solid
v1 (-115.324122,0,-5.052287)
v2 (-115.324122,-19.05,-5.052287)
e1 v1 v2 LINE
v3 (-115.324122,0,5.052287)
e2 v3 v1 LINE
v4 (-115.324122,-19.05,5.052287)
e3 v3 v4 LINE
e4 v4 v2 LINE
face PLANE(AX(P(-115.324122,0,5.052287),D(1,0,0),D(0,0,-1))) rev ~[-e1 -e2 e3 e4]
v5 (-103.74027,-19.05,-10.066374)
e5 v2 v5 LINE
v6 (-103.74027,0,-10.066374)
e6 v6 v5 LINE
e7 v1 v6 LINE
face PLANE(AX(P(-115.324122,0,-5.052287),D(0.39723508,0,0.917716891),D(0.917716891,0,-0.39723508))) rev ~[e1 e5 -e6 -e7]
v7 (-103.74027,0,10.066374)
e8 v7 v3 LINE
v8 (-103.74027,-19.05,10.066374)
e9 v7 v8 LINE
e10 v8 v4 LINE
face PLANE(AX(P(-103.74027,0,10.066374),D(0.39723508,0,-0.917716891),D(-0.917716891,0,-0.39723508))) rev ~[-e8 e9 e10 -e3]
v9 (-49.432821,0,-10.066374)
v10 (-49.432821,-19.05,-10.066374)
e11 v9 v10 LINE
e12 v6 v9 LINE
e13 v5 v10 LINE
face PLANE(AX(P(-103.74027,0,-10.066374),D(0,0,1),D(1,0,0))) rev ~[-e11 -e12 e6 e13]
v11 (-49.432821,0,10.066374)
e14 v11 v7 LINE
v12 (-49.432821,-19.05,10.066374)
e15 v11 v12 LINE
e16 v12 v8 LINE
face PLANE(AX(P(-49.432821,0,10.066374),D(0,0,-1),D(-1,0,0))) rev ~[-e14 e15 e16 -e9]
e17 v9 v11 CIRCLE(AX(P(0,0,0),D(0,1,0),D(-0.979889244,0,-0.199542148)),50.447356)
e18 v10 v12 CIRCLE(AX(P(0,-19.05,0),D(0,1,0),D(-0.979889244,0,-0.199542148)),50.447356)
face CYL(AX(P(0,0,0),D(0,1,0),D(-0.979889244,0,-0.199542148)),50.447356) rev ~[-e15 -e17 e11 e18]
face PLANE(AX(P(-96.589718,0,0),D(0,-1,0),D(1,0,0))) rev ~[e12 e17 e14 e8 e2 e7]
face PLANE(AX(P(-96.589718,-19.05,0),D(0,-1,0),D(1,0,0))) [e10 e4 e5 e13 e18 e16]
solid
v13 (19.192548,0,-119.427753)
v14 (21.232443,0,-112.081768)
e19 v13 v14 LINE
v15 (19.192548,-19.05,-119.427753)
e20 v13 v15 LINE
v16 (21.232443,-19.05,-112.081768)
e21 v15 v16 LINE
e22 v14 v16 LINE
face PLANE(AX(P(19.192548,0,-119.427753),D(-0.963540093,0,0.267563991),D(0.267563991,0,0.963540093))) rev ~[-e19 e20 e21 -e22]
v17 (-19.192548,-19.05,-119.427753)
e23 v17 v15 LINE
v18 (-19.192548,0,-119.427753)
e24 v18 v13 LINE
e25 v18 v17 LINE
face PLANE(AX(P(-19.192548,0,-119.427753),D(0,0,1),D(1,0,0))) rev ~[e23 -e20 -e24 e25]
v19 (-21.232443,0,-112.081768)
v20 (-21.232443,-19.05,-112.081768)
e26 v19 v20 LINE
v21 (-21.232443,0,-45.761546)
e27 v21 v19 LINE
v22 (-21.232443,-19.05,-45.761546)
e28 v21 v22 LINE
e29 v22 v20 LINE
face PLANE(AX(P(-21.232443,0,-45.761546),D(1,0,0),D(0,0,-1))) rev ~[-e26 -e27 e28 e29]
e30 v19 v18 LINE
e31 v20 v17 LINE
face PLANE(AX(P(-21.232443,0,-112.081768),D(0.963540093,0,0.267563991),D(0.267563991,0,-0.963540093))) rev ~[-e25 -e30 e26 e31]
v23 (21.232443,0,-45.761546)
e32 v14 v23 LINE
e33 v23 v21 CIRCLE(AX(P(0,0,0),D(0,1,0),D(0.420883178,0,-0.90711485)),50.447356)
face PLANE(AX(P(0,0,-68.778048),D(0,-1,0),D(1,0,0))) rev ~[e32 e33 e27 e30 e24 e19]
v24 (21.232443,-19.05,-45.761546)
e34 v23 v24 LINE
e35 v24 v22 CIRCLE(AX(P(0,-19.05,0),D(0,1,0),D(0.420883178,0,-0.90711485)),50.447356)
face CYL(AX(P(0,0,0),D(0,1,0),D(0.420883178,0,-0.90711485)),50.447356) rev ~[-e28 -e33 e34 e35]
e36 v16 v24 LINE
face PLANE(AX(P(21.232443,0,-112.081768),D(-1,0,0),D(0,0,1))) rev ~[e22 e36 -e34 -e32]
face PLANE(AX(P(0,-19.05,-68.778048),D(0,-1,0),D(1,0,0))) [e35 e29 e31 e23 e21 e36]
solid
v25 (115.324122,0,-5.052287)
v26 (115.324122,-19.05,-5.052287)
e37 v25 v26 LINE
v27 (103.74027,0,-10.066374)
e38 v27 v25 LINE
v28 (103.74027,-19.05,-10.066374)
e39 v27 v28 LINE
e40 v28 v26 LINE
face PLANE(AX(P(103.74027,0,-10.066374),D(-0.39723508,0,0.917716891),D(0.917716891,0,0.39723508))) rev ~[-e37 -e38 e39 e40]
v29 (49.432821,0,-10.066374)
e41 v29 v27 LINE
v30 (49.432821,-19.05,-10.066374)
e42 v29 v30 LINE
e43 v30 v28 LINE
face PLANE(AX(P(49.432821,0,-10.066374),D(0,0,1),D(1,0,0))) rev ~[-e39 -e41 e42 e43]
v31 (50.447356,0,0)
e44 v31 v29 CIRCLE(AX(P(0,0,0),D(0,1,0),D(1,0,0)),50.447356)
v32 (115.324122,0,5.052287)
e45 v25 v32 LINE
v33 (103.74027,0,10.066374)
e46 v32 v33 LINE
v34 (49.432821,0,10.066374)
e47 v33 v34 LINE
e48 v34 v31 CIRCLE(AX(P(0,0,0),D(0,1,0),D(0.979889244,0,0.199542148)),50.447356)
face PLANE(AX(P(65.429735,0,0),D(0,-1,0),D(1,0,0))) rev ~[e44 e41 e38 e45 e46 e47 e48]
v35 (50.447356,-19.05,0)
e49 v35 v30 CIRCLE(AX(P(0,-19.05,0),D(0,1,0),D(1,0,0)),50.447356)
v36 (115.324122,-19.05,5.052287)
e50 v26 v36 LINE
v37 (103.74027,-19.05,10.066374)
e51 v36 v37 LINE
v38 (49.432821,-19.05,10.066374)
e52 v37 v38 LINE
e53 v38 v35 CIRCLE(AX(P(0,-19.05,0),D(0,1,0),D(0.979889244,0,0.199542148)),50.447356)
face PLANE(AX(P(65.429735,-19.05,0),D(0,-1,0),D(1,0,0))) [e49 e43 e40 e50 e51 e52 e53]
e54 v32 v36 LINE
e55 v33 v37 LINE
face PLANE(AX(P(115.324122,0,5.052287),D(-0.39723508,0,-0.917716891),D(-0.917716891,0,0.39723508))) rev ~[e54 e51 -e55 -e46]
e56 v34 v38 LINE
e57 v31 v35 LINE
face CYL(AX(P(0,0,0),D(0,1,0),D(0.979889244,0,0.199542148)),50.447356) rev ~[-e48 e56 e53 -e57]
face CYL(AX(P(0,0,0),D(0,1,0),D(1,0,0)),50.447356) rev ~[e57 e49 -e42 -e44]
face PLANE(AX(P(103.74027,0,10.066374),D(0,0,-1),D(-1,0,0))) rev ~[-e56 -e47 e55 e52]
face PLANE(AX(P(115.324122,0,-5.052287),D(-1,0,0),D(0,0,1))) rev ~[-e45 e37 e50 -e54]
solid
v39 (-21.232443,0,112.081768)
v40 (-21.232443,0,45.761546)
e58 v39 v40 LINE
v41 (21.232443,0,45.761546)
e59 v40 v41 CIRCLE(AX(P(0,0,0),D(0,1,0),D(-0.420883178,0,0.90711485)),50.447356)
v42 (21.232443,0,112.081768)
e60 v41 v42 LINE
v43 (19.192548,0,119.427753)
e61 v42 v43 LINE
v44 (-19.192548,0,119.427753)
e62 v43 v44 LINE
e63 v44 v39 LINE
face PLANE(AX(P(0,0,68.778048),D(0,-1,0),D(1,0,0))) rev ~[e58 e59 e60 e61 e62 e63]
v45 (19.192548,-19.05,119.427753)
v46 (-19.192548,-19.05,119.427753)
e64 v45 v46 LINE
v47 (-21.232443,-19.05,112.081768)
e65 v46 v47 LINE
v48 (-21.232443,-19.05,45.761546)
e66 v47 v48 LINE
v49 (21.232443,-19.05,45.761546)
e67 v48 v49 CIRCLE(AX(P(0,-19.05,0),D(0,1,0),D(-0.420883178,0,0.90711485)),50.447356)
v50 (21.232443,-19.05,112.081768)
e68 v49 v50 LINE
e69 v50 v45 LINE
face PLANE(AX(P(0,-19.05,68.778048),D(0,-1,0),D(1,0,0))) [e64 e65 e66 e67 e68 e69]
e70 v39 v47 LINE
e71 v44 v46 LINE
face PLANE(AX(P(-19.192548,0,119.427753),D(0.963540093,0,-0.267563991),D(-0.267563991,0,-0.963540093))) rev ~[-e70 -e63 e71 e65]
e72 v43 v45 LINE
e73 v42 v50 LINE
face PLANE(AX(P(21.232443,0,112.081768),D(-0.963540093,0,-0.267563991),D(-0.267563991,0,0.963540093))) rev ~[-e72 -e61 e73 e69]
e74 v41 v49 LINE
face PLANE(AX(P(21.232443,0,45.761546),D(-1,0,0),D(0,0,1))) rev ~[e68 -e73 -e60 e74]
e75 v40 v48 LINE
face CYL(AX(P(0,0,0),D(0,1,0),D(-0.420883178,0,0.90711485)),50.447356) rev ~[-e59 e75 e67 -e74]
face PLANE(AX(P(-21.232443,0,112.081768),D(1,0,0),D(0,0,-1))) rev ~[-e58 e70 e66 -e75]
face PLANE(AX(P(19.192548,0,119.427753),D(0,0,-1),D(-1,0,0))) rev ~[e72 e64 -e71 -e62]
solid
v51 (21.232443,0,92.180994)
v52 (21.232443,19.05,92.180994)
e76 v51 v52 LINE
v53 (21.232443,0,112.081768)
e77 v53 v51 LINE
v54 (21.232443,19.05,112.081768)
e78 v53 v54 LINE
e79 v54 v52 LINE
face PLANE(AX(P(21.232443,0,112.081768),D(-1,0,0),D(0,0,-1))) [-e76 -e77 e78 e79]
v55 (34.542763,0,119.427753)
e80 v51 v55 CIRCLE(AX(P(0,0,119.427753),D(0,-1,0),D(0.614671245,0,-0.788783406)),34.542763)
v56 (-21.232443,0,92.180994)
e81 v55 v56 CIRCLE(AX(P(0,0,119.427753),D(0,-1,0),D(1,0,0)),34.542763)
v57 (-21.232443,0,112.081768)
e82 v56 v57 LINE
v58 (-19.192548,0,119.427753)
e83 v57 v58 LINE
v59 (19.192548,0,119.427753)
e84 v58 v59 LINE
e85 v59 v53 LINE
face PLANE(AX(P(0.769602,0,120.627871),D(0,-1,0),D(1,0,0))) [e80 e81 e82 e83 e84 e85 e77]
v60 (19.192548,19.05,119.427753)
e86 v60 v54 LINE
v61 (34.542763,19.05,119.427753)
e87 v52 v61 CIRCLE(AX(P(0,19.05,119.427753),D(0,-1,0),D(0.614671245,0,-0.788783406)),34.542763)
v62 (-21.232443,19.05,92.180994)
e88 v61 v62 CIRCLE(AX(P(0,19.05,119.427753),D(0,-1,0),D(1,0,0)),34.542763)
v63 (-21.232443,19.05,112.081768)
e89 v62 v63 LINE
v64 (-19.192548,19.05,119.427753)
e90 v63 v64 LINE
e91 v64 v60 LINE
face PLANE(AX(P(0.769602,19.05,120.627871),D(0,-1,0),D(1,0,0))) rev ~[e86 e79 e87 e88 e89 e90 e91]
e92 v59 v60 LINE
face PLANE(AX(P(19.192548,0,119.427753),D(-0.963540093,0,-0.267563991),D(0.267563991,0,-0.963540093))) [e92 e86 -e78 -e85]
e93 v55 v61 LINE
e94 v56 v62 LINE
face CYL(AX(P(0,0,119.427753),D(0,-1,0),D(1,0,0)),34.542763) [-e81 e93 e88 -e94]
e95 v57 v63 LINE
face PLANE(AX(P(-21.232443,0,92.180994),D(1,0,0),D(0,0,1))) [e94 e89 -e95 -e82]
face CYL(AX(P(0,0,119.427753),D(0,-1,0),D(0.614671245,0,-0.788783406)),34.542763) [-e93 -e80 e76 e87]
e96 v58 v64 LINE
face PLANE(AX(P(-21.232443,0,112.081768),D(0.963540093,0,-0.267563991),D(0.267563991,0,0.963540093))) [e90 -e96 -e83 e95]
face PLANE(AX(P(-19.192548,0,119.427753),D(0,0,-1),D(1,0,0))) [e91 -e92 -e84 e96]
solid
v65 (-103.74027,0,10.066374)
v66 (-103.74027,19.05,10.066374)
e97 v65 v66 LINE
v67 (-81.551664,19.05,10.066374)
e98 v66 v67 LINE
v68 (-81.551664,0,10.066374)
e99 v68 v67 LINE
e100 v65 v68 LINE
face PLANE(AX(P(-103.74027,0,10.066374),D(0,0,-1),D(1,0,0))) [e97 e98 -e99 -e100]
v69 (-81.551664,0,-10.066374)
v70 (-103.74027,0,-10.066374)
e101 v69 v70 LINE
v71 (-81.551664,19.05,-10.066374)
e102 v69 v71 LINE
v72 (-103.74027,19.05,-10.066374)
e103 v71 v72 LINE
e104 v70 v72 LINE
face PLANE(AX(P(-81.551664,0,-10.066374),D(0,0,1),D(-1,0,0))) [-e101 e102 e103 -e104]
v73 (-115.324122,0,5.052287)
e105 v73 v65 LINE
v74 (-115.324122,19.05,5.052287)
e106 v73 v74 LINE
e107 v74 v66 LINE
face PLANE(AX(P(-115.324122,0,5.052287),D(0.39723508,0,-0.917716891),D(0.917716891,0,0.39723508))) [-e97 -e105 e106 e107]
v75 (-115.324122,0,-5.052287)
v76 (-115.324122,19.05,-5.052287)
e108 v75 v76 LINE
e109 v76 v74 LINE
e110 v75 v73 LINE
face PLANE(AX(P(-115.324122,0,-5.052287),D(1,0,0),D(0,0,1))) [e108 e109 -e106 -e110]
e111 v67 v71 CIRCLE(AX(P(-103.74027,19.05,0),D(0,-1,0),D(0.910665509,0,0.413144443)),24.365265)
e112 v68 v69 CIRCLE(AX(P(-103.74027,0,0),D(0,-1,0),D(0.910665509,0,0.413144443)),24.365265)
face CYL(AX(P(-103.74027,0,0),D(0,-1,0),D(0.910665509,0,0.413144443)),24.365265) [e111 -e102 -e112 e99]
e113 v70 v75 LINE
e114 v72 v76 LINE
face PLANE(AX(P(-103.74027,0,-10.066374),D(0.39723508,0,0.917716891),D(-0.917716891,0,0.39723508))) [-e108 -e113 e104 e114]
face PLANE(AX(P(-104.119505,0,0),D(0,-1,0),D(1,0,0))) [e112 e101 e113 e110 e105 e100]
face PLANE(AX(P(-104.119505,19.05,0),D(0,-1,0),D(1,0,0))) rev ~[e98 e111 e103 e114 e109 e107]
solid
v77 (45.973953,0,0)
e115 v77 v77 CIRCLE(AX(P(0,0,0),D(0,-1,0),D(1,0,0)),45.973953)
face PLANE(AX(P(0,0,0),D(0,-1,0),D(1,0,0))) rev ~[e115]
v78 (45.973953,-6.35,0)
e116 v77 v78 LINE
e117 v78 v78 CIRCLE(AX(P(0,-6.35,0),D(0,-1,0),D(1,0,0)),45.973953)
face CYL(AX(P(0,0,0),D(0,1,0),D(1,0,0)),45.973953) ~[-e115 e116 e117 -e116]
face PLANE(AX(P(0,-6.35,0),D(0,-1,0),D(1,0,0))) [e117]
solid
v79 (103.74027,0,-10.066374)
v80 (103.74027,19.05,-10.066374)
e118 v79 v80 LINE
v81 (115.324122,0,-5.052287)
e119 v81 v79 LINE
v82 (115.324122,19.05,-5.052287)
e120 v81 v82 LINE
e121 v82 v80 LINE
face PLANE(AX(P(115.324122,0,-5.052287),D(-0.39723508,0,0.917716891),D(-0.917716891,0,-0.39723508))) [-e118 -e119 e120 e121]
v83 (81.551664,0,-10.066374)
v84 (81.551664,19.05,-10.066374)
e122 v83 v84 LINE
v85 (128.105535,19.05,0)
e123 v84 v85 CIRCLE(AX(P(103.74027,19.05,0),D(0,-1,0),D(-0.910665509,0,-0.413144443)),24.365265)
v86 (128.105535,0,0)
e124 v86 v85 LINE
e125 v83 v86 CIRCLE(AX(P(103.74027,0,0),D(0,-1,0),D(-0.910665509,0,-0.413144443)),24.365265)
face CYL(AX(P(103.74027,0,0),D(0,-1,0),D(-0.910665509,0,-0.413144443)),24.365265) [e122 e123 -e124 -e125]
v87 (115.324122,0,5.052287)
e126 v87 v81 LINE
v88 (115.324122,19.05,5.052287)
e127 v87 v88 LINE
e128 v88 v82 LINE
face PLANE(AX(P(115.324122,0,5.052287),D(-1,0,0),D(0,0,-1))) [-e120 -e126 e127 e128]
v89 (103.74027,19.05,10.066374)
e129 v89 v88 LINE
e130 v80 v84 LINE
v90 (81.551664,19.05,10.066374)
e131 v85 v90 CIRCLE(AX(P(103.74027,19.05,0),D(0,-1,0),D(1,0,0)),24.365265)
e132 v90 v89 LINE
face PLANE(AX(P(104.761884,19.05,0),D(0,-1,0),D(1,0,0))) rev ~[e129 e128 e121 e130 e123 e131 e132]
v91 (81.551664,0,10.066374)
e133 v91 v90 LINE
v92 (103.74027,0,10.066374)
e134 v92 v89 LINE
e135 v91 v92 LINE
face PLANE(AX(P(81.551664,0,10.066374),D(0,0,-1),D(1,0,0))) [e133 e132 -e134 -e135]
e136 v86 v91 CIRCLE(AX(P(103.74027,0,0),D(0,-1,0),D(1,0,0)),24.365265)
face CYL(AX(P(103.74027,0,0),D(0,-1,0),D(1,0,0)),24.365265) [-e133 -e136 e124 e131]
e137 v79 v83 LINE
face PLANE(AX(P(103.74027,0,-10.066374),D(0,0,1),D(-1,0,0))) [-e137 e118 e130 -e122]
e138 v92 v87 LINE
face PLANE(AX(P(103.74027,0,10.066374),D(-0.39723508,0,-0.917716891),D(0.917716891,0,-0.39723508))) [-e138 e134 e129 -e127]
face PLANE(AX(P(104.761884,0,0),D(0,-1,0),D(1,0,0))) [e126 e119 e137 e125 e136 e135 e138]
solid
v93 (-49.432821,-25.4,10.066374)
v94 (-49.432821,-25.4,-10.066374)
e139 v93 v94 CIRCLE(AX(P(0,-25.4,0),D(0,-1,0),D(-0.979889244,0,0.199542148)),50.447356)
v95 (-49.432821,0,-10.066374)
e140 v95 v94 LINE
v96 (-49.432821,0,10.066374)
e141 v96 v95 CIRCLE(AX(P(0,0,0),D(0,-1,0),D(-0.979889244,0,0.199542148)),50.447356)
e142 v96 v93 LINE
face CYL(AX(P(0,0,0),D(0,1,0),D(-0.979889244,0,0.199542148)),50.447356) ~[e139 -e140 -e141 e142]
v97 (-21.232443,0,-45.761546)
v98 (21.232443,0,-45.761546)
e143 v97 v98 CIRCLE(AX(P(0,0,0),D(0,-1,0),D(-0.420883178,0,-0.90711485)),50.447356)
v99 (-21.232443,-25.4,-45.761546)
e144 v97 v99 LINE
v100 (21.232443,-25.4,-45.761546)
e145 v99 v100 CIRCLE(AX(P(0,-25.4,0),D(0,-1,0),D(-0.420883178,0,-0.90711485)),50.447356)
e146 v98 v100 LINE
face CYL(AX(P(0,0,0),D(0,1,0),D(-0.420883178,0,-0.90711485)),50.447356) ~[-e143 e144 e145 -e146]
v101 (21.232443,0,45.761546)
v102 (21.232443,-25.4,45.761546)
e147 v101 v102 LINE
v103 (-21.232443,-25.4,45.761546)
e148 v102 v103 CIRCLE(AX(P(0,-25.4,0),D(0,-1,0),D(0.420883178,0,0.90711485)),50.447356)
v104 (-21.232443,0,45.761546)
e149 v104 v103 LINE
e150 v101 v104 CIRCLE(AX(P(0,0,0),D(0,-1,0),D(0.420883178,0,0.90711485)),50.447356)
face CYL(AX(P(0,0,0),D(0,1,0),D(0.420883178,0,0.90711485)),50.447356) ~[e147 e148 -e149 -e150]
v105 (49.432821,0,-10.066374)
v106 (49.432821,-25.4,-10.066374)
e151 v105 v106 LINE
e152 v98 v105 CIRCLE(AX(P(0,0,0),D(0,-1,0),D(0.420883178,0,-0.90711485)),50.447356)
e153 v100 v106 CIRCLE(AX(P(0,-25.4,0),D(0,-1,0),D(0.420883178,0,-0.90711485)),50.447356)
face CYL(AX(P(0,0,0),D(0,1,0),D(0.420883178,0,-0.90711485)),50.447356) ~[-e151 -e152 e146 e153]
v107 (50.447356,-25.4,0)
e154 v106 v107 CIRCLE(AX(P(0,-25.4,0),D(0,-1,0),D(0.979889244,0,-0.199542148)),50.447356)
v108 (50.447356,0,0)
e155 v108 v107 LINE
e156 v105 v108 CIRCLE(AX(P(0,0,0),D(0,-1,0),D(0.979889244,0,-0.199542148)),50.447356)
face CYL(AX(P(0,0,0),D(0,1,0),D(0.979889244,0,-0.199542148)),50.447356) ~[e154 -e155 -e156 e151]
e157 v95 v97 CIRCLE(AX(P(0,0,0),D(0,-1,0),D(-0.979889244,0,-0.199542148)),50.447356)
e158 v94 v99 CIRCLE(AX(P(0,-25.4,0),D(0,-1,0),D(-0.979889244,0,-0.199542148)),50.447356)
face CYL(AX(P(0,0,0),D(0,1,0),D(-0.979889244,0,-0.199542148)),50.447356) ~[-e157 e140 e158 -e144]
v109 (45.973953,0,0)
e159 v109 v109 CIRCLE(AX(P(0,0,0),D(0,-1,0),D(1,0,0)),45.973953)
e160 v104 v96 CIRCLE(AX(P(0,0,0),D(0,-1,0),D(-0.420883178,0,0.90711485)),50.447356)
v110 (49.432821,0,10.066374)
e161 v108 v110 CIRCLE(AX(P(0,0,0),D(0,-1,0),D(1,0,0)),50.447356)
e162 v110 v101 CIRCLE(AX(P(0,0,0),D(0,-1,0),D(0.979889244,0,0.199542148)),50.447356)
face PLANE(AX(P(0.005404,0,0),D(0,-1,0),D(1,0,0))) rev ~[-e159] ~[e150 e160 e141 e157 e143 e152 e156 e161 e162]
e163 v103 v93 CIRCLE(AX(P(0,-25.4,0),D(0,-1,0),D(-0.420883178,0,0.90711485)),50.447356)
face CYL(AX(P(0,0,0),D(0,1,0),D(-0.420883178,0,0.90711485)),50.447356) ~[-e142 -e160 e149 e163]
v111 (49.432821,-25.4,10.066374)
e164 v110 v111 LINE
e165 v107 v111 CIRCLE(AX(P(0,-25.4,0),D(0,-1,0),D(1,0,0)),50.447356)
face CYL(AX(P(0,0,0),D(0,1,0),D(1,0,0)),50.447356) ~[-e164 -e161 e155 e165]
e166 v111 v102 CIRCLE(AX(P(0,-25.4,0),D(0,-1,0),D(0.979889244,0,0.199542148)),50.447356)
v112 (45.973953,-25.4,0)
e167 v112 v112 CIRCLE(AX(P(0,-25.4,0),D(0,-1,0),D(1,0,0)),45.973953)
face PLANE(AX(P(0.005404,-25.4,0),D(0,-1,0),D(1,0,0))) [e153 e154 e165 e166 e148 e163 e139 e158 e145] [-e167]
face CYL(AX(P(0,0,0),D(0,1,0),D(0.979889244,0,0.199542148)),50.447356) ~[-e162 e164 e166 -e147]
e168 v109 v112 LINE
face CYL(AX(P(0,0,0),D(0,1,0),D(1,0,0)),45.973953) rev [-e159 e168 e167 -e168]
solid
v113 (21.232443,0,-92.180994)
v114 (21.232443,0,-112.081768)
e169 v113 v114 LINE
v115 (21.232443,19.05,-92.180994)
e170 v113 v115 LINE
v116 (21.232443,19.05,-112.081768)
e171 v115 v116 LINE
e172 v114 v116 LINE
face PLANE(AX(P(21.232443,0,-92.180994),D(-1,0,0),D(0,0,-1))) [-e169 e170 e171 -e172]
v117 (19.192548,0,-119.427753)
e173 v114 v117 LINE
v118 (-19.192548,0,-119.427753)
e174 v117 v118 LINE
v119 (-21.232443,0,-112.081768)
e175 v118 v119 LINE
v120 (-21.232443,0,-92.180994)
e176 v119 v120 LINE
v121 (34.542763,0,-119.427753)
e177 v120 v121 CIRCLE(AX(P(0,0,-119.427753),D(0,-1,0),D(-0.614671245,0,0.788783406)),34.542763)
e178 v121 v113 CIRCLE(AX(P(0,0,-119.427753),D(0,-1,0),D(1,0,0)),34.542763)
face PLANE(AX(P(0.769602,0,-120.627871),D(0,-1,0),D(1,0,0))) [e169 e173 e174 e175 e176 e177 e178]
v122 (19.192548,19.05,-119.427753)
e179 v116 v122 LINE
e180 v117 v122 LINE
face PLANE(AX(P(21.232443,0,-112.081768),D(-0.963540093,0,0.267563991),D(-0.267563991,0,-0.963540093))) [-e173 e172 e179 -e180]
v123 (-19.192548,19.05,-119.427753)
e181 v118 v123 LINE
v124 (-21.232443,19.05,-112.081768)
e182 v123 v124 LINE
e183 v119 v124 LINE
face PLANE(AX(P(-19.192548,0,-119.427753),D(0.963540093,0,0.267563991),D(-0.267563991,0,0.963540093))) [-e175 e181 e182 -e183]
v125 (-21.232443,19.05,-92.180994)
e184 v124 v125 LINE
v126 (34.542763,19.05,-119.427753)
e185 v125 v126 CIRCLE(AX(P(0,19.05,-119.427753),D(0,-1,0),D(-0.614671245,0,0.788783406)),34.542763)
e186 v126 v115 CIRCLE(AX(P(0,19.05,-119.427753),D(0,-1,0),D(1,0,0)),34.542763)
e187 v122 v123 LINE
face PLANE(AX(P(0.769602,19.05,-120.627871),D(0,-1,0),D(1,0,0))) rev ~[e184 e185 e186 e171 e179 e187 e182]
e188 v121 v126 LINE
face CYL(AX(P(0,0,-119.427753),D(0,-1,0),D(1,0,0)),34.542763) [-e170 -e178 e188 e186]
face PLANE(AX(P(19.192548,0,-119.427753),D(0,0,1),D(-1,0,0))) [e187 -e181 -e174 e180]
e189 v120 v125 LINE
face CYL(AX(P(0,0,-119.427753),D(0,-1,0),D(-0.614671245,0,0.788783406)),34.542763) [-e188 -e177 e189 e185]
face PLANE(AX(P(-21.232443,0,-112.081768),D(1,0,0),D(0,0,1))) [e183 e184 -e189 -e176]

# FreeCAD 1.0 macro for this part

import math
import FreeCAD as App
import Part
import Sketcher
Q = App.Units.Quantity

doc = App.newDocument("Part")
body = doc.addObject("PartDesign::Body", "Body")

# Sketch on XZ plane
sketch1 = body.newObject("Sketcher::SketchObject", "Sketch")
sketch1.AttachmentSupport = (doc.getObject("XZ_Plane"), [""])
sketch1.MapMode = "FlatFace"
sketch1.addGeometry(Part.Circle(App.Vector(0, 0, 0), App.Vector(0, 0, 1), 45.973953), False)
sketch1.addConstraint(Sketcher.Constraint("Coincident", 0, 3, -1, 1))
sketch1.addConstraint(Sketcher.Constraint("Diameter", 0, 91.947905))
pad1 = body.newObject("PartDesign::Pad", "Pad")
pad1.Profile = sketch1
pad1.Length = Q("0.25 in")
body2 = doc.addObject("PartDesign::Body", "Body001")

# Sketch on XZ plane
sketch2 = body2.newObject("Sketcher::SketchObject", "Sketch001")
sketch2.AttachmentSupport = (doc.getObject("XZ_Plane001"), [""])
sketch2.MapMode = "FlatFace"
sketch2.addGeometry(Part.ArcOfCircle(Part.Circle(App.Vector(0, 0, 0), App.Vector(0, 0, 1), 50.447356), math.radians(-11.510186), math.radians(0)), False)
sketch2.addGeometry(Part.ArcOfCircle(Part.Circle(App.Vector(0, 0, 0), App.Vector(0, 0, 1), 50.447356), math.radians(0), math.radians(11.510186)), False)
sketch2.addGeometry(Part.ArcOfCircle(Part.Circle(App.Vector(0, 0, 0), App.Vector(0, 0, 1), 50.447356), math.radians(11.510186), math.radians(65.109641)), False)
sketch2.addGeometry(Part.ArcOfCircle(Part.Circle(App.Vector(0, 0, 0), App.Vector(0, 0, 1), 50.447356), math.radians(65.109641), math.radians(114.890359)), False)
sketch2.addGeometry(Part.ArcOfCircle(Part.Circle(App.Vector(0, 0, 0), App.Vector(0, 0, 1), 50.447356), math.radians(114.890359), math.radians(168.489814)), False)
sketch2.addGeometry(Part.ArcOfCircle(Part.Circle(App.Vector(0, 0, 0), App.Vector(0, 0, 1), 50.447356), math.radians(168.489814), math.radians(191.510186)), False)
sketch2.addGeometry(Part.ArcOfCircle(Part.Circle(App.Vector(0, 0, 0), App.Vector(0, 0, 1), 50.447356), math.radians(-168.489814), math.radians(-114.890359)), False)
sketch2.addGeometry(Part.ArcOfCircle(Part.Circle(App.Vector(0, 0, 0), App.Vector(0, 0, 1), 50.447356), math.radians(-114.890359), math.radians(-65.109641)), False)
sketch2.addGeometry(Part.ArcOfCircle(Part.Circle(App.Vector(0, 0, 0), App.Vector(0, 0, 1), 50.447356), math.radians(-65.109641), math.radians(-11.510186)), False)
sketch2.addGeometry(Part.Circle(App.Vector(0, 0, 0), App.Vector(0, 0, 1), 45.973953), False)
sketch2.addConstraint(Sketcher.Constraint("Tangent", 0, 2, 1, 1))
sketch2.addConstraint(Sketcher.Constraint("Tangent", 1, 2, 2, 1))
sketch2.addConstraint(Sketcher.Constraint("Tangent", 2, 2, 3, 1))
sketch2.addConstraint(Sketcher.Constraint("Tangent", 3, 2, 4, 1))
sketch2.addConstraint(Sketcher.Constraint("Tangent", 4, 2, 5, 1))
sketch2.addConstraint(Sketcher.Constraint("Tangent", 5, 2, 6, 1))
sketch2.addConstraint(Sketcher.Constraint("Tangent", 6, 2, 7, 1))
sketch2.addConstraint(Sketcher.Constraint("Tangent", 7, 2, 8, 1))
sketch2.addConstraint(Sketcher.Constraint("Tangent", 8, 2, 0, 1))
sketch2.addConstraint(Sketcher.Constraint("Coincident", 0, 3, -1, 1))
sketch2.addConstraint(Sketcher.Constraint("Coincident", 2, 3, -1, 1))
sketch2.addConstraint(Sketcher.Constraint("Coincident", 4, 3, -1, 1))
sketch2.addConstraint(Sketcher.Constraint("Coincident", 6, 3, -1, 1))
sketch2.addConstraint(Sketcher.Constraint("Coincident", 9, 3, -1, 1))
sketch2.addConstraint(Sketcher.Constraint("PointOnObject", 0, 2, -1))
sketch2.addConstraint(Sketcher.Constraint("Horizontal", 2, 2, 3, 2))
sketch2.addConstraint(Sketcher.Constraint("Horizontal", 1, 2, 4, 2))
sketch2.addConstraint(Sketcher.Constraint("Horizontal", 6, 2, 7, 2))
sketch2.addConstraint(Sketcher.Constraint("Horizontal", 5, 2, 8, 2))
sketch2.addConstraint(Sketcher.Constraint("Vertical", 4, 2, 5, 2))
sketch2.addConstraint(Sketcher.Constraint("Vertical", 3, 2, 6, 2))
sketch2.addConstraint(Sketcher.Constraint("Diameter", 9, 91.947905))
sketch2.addConstraint(Sketcher.Constraint("Radius", 0, 50.447356))
sketch2.addConstraint(Sketcher.Constraint("DistanceX", -1, 1, 1, 2, 49.432821))
sketch2.addConstraint(Sketcher.Constraint("DistanceY", 1, 2, 2, 2, 35.695172))
pad2 = body2.newObject("PartDesign::Pad", "Pad001")
pad2.Profile = sketch2
pad2.Length = Q("1 in")
body3 = doc.addObject("PartDesign::Body", "Body002")

# Sketch on XZ plane
sketch3 = body3.newObject("Sketcher::SketchObject", "Sketch002")
sketch3.AttachmentSupport = (doc.getObject("XZ_Plane002"), [""])
sketch3.MapMode = "FlatFace"
sketch3.addGeometry(Part.LineSegment(App.Vector(-103.74027, 10.066374, 0), App.Vector(-115.324122, 5.052287, 0)), False)
sketch3.addGeometry(Part.LineSegment(App.Vector(-115.324122, 5.052287, 0), App.Vector(-115.324122, -5.052287, 0)), False)
sketch3.addGeometry(Part.LineSegment(App.Vector(-115.324122, -5.052287, 0), App.Vector(-103.74027, -10.066374, 0)), False)
sketch3.addGeometry(Part.LineSegment(App.Vector(-103.74027, -10.066374, 0), App.Vector(-49.432821, -10.066374, 0)), False)
sketch3.addGeometry(Part.ArcOfCircle(Part.Circle(App.Vector(0, 0, 0), App.Vector(0, 0, 1), 50.447356), math.radians(168.489814), math.radians(191.510186)), False)
sketch3.addGeometry(Part.LineSegment(App.Vector(-49.432821, 10.066374, 0), App.Vector(-103.74027, 10.066374, 0)), False)
sketch3.addConstraint(Sketcher.Constraint("Coincident", 0, 2, 1, 1))
sketch3.addConstraint(Sketcher.Constraint("Coincident", 1, 2, 2, 1))
sketch3.addConstraint(Sketcher.Constraint("Coincident", 2, 2, 3, 1))
sketch3.addConstraint(Sketcher.Constraint("Coincident", 3, 2, 4, 2))
sketch3.addConstraint(Sketcher.Constraint("Coincident", 4, 1, 5, 1))
sketch3.addConstraint(Sketcher.Constraint("Coincident", 5, 2, 0, 1))
sketch3.addConstraint(Sketcher.Constraint("Vertical", 1))
sketch3.addConstraint(Sketcher.Constraint("Horizontal", 3))
sketch3.addConstraint(Sketcher.Constraint("Horizontal", 5))
sketch3.addConstraint(Sketcher.Constraint("Coincident", 4, 3, -1, 1))
sketch3.addConstraint(Sketcher.Constraint("Symmetric", 2, 2, 5, 2, -1))
sketch3.addConstraint(Sketcher.Constraint("Equal", 0, 2))
sketch3.addConstraint(Sketcher.Constraint("Radius", 4, 50.447356))
sketch3.addConstraint(Sketcher.Constraint("DistanceX", 3, 1, 3, 2, 54.307449))
sketch3.addConstraint(Sketcher.Constraint("DistanceX", 1, 2, 3, 2, 65.891301))
sketch3.addConstraint(Sketcher.Constraint("DistanceY", 1, 2, 1, 1, 10.104573))
sketch3.addConstraint(Sketcher.Constraint("DistanceX", 2, 2, -1, 1, 103.74027))
pad3 = body3.newObject("PartDesign::Pad", "Pad002")
pad3.Profile = sketch3
pad3.Length = Q("0.75 in")
body4 = doc.addObject("PartDesign::Body", "Body003")

# Sketch on XZ plane
sketch4 = body4.newObject("Sketcher::SketchObject", "Sketch003")
sketch4.AttachmentSupport = (doc.getObject("XZ_Plane003"), [""])
sketch4.MapMode = "FlatFace"
sketch4.addGeometry(Part.ArcOfCircle(Part.Circle(App.Vector(0, 0, 0), App.Vector(0, 0, 1), 50.447356), math.radians(0), math.radians(11.510186)), False)
sketch4.addGeometry(Part.ArcOfCircle(Part.Circle(App.Vector(0, 0, 0), App.Vector(0, 0, 1), 50.447356), math.radians(-11.510186), math.radians(0)), False)
sketch4.addGeometry(Part.LineSegment(App.Vector(49.432821, -10.066374, 0), App.Vector(103.74027, -10.066374, 0)), False)
sketch4.addGeometry(Part.LineSegment(App.Vector(103.74027, -10.066374, 0), App.Vector(115.324122, -5.052287, 0)), False)
sketch4.addGeometry(Part.LineSegment(App.Vector(115.324122, -5.052287, 0), App.Vector(115.324122, 5.052287, 0)), False)
sketch4.addGeometry(Part.LineSegment(App.Vector(115.324122, 5.052287, 0), App.Vector(103.74027, 10.066374, 0)), False)
sketch4.addGeometry(Part.LineSegment(App.Vector(103.74027, 10.066374, 0), App.Vector(49.432821, 10.066374, 0)), False)
sketch4.addConstraint(Sketcher.Constraint("Tangent", 0, 1, 1, 2))
sketch4.addConstraint(Sketcher.Constraint("Coincident", 1, 1, 2, 1))
sketch4.addConstraint(Sketcher.Constraint("Coincident", 2, 2, 3, 1))
sketch4.addConstraint(Sketcher.Constraint("Coincident", 3, 2, 4, 1))
sketch4.addConstraint(Sketcher.Constraint("Coincident", 4, 2, 5, 1))
sketch4.addConstraint(Sketcher.Constraint("Coincident", 5, 2, 6, 1))
sketch4.addConstraint(Sketcher.Constraint("Coincident", 6, 2, 0, 2))
sketch4.addConstraint(Sketcher.Constraint("Horizontal", 2))
sketch4.addConstraint(Sketcher.Constraint("Vertical", 4))
sketch4.addConstraint(Sketcher.Constraint("Horizontal", 6))
sketch4.addConstraint(Sketcher.Constraint("Coincident", 0, 3, -1, 1))
sketch4.addConstraint(Sketcher.Constraint("Equal", 0, 1))
sketch4.addConstraint(Sketcher.Constraint("Symmetric", 2, 2, 5, 2, -1))
sketch4.addConstraint(Sketcher.Constraint("PointOnObject", 0, 1, -1))
sketch4.addConstraint(Sketcher.Constraint("Equal", 3, 5))
sketch4.addConstraint(Sketcher.Constraint("Radius", 0, 50.447356))
sketch4.addConstraint(Sketcher.Constraint("DistanceX", 2, 1, 2, 2, 54.307449))
sketch4.addConstraint(Sketcher.Constraint("DistanceX", 1, 1, 3, 2, 65.891301))
sketch4.addConstraint(Sketcher.Constraint("DistanceY", 4, 1, 4, 2, 10.104573))
sketch4.addConstraint(Sketcher.Constraint("DistanceX", -1, 1, 1, 1, 49.432821))
pad4 = body4.newObject("PartDesign::Pad", "Pad003")
pad4.Profile = sketch4
pad4.Length = Q("0.75 in")
body5 = doc.addObject("PartDesign::Body", "Body004")

# Sketch on XZ plane
sketch5 = body5.newObject("Sketcher::SketchObject", "Sketch004")
sketch5.AttachmentSupport = (doc.getObject("XZ_Plane004"), [""])
sketch5.MapMode = "FlatFace"
sketch5.addGeometry(Part.ArcOfCircle(Part.Circle(App.Vector(0, 0, 0), App.Vector(0, 0, 1), 50.447356), math.radians(65.109641), math.radians(114.890359)), False)
sketch5.addGeometry(Part.LineSegment(App.Vector(21.232443, 45.761546, 0), App.Vector(21.232443, 112.081768, 0)), False)
sketch5.addGeometry(Part.LineSegment(App.Vector(21.232443, 112.081768, 0), App.Vector(19.192548, 119.427753, 0)), False)
sketch5.addGeometry(Part.LineSegment(App.Vector(19.192548, 119.427753, 0), App.Vector(-19.192548, 119.427753, 0)), False)
sketch5.addGeometry(Part.LineSegment(App.Vector(-19.192548, 119.427753, 0), App.Vector(-21.232443, 112.081768, 0)), False)
sketch5.addGeometry(Part.LineSegment(App.Vector(-21.232443, 112.081768, 0), App.Vector(-21.232443, 45.761546, 0)), False)
sketch5.addConstraint(Sketcher.Constraint("Coincident", 0, 1, 1, 1))
sketch5.addConstraint(Sketcher.Constraint("Coincident", 1, 2, 2, 1))
sketch5.addConstraint(Sketcher.Constraint("Coincident", 2, 2, 3, 1))
sketch5.addConstraint(Sketcher.Constraint("Coincident", 3, 2, 4, 1))
sketch5.addConstraint(Sketcher.Constraint("Coincident", 4, 2, 5, 1))
sketch5.addConstraint(Sketcher.Constraint("Coincident", 5, 2, 0, 2))
sketch5.addConstraint(Sketcher.Constraint("Vertical", 1))
sketch5.addConstraint(Sketcher.Constraint("Horizontal", 3))
sketch5.addConstraint(Sketcher.Constraint("Vertical", 5))
sketch5.addConstraint(Sketcher.Constraint("Coincident", 0, 3, -1, 1))
sketch5.addConstraint(Sketcher.Constraint("Symmetric", 1, 2, 4, 2, -2))
sketch5.addConstraint(Sketcher.Constraint("Equal", 2, 4))
sketch5.addConstraint(Sketcher.Constraint("Radius", 0, 50.447356))
sketch5.addConstraint(Sketcher.Constraint("DistanceX", 3, 2, 3, 1, 38.385096))
sketch5.addConstraint(Sketcher.Constraint("DistanceY", 1, 1, 1, 2, 66.320223))
sketch5.addConstraint(Sketcher.Constraint("DistanceY", -1, 1, 1, 2, 112.081768))
sketch5.addConstraint(Sketcher.Constraint("Distance", 2, 7.623953))
pad5 = body5.newObject("PartDesign::Pad", "Pad004")
pad5.Profile = sketch5
pad5.Length = Q("0.75 in")
body6 = doc.addObject("PartDesign::Body", "Body005")

# Sketch on XZ plane
sketch6 = body6.newObject("Sketcher::SketchObject", "Sketch005")
sketch6.AttachmentSupport = (doc.getObject("XZ_Plane005"), [""])
sketch6.MapMode = "FlatFace"
sketch6.addGeometry(Part.ArcOfCircle(Part.Circle(App.Vector(0, 0, 0), App.Vector(0, 0, 1), 50.447356), math.radians(-114.890359), math.radians(-65.109641)), False)
sketch6.addGeometry(Part.LineSegment(App.Vector(-21.232443, -45.761546, 0), App.Vector(-21.232443, -112.081768, 0)), False)
sketch6.addGeometry(Part.LineSegment(App.Vector(-21.232443, -112.081768, 0), App.Vector(-19.192548, -119.427753, 0)), False)
sketch6.addGeometry(Part.LineSegment(App.Vector(-19.192548, -119.427753, 0), App.Vector(19.192548, -119.427753, 0)), False)
sketch6.addGeometry(Part.LineSegment(App.Vector(19.192548, -119.427753, 0), App.Vector(21.232443, -112.081768, 0)), False)
sketch6.addGeometry(Part.LineSegment(App.Vector(21.232443, -112.081768, 0), App.Vector(21.232443, -45.761546, 0)), False)
sketch6.addConstraint(Sketcher.Constraint("Coincident", 0, 1, 1, 1))
sketch6.addConstraint(Sketcher.Constraint("Coincident", 1, 2, 2, 1))
sketch6.addConstraint(Sketcher.Constraint("Coincident", 2, 2, 3, 1))
sketch6.addConstraint(Sketcher.Constraint("Coincident", 3, 2, 4, 1))
sketch6.addConstraint(Sketcher.Constraint("Coincident", 4, 2, 5, 1))
sketch6.addConstraint(Sketcher.Constraint("Coincident", 5, 2, 0, 2))
sketch6.addConstraint(Sketcher.Constraint("Vertical", 1))
sketch6.addConstraint(Sketcher.Constraint("Horizontal", 3))
sketch6.addConstraint(Sketcher.Constraint("Vertical", 5))
sketch6.addConstraint(Sketcher.Constraint("Coincident", 0, 3, -1, 1))
sketch6.addConstraint(Sketcher.Constraint("Symmetric", 1, 2, 4, 2, -2))
sketch6.addConstraint(Sketcher.Constraint("Equal", 2, 4))
sketch6.addConstraint(Sketcher.Constraint("Radius", 0, 50.447356))
sketch6.addConstraint(Sketcher.Constraint("DistanceX", 3, 1, 3, 2, 38.385096))
sketch6.addConstraint(Sketcher.Constraint("DistanceY", 1, 2, 1, 1, 66.320223))
sketch6.addConstraint(Sketcher.Constraint("DistanceY", 1, 2, -1, 1, 112.081768))
sketch6.addConstraint(Sketcher.Constraint("Distance", 2, 7.623953))
pad6 = body6.newObject("PartDesign::Pad", "Pad005")
pad6.Profile = sketch6
pad6.Length = Q("0.75 in")
body7 = doc.addObject("PartDesign::Body", "Body006")

# Sketch on XZ plane
sketch7 = body7.newObject("Sketcher::SketchObject", "Sketch006")
sketch7.AttachmentSupport = (doc.getObject("XZ_Plane006"), [""])
sketch7.MapMode = "FlatFace"
sketch7.addGeometry(Part.LineSegment(App.Vector(21.232443, 112.081768, 0), App.Vector(21.232443, 92.180994, 0)), False)
sketch7.addGeometry(Part.ArcOfCircle(Part.Circle(App.Vector(0, 119.427753, 0), App.Vector(0, 0, 1), 34.542763), math.radians(-52.071964), math.radians(0)), False)
sketch7.addGeometry(Part.ArcOfCircle(Part.Circle(App.Vector(0, 119.427753, 0), App.Vector(0, 0, 1), 34.542763), math.radians(0), math.radians(232.071964)), False)
sketch7.addGeometry(Part.LineSegment(App.Vector(-21.232443, 92.180994, 0), App.Vector(-21.232443, 112.081768, 0)), False)
sketch7.addGeometry(Part.LineSegment(App.Vector(-21.232443, 112.081768, 0), App.Vector(-19.192548, 119.427753, 0)), False)
sketch7.addGeometry(Part.LineSegment(App.Vector(-19.192548, 119.427753, 0), App.Vector(19.192548, 119.427753, 0)), False)
sketch7.addGeometry(Part.LineSegment(App.Vector(19.192548, 119.427753, 0), App.Vector(21.232443, 112.081768, 0)), False)
sketch7.addConstraint(Sketcher.Constraint("Coincident", 0, 2, 1, 1))
sketch7.addConstraint(Sketcher.Constraint("Tangent", 1, 2, 2, 1))
sketch7.addConstraint(Sketcher.Constraint("Coincident", 2, 2, 3, 1))
sketch7.addConstraint(Sketcher.Constraint("Coincident", 3, 2, 4, 1))
sketch7.addConstraint(Sketcher.Constraint("Coincident", 4, 2, 5, 1))
sketch7.addConstraint(Sketcher.Constraint("Coincident", 5, 2, 6, 1))
sketch7.addConstraint(Sketcher.Constraint("Coincident", 6, 2, 0, 1))
sketch7.addConstraint(Sketcher.Constraint("Vertical", 0))
sketch7.addConstraint(Sketcher.Constraint("Vertical", 3))
sketch7.addConstraint(Sketcher.Constraint("Horizontal", 5))
sketch7.addConstraint(Sketcher.Constraint("Equal", 1, 2))
sketch7.addConstraint(Sketcher.Constraint("Symmetric", 0, 2, 2, 2, -2))
sketch7.addConstraint(Sketcher.Constraint("Horizontal", 2, 3, 1, 2))
sketch7.addConstraint(Sketcher.Constraint("Horizontal", 1, 2, 4, 2))
sketch7.addConstraint(Sketcher.Constraint("Horizontal", 3, 2, 6, 2))
sketch7.addConstraint(Sketcher.Constraint("Equal", 4, 6))
sketch7.addConstraint(Sketcher.Constraint("Radius", 1, 34.542763))
sketch7.addConstraint(Sketcher.Constraint("DistanceX", 5, 1, 5, 2, 38.385096))
sketch7.addConstraint(Sketcher.Constraint("DistanceY", 0, 2, 0, 1, 19.900774))
sketch7.addConstraint(Sketcher.Constraint("DistanceY", -1, 1, 3, 2, 112.081768))
sketch7.addConstraint(Sketcher.Constraint("DistanceY", 0, 2, 1, 3, 27.246759))
pad7 = body7.newObject("PartDesign::Pad", "Pad006")
pad7.Profile = sketch7
pad7.Length = Q("0.75 in")
pad7.Reversed = True
body8 = doc.addObject("PartDesign::Body", "Body007")

# Sketch on XZ plane
sketch8 = body8.newObject("Sketcher::SketchObject", "Sketch007")
sketch8.AttachmentSupport = (doc.getObject("XZ_Plane007"), [""])
sketch8.MapMode = "FlatFace"
sketch8.addGeometry(Part.ArcOfCircle(Part.Circle(App.Vector(0, -119.427753, 0), App.Vector(0, 0, 1), 34.542763), math.radians(0), math.radians(52.071964)), False)
sketch8.addGeometry(Part.LineSegment(App.Vector(21.232443, -92.180994, 0), App.Vector(21.232443, -112.081768, 0)), False)
sketch8.addGeometry(Part.LineSegment(App.Vector(21.232443, -112.081768, 0), App.Vector(19.192548, -119.427753, 0)), False)
sketch8.addGeometry(Part.LineSegment(App.Vector(19.192548, -119.427753, 0), App.Vector(-19.192548, -119.427753, 0)), False)
sketch8.addGeometry(Part.LineSegment(App.Vector(-19.192548, -119.427753, 0), App.Vector(-21.232443, -112.081768, 0)), False)
sketch8.addGeometry(Part.LineSegment(App.Vector(-21.232443, -112.081768, 0), App.Vector(-21.232443, -92.180994, 0)), False)
sketch8.addGeometry(Part.ArcOfCircle(Part.Circle(App.Vector(0, -119.427753, 0), App.Vector(0, 0, 1), 34.542763), math.radians(127.928036), math.radians(360)), False)
sketch8.addConstraint(Sketcher.Constraint("Coincident", 0, 2, 1, 1))
sketch8.addConstraint(Sketcher.Constraint("Coincident", 1, 2, 2, 1))
sketch8.addConstraint(Sketcher.Constraint("Coincident", 2, 2, 3, 1))
sketch8.addConstraint(Sketcher.Constraint("Coincident", 3, 2, 4, 1))
sketch8.addConstraint(Sketcher.Constraint("Coincident", 4, 2, 5, 1))
sketch8.addConstraint(Sketcher.Constraint("Coincident", 5, 2, 6, 1))
sketch8.addConstraint(Sketcher.Constraint("Tangent", 6, 2, 0, 1))
sketch8.addConstraint(Sketcher.Constraint("Vertical", 1))
sketch8.addConstraint(Sketcher.Constraint("Horizontal", 3))
sketch8.addConstraint(Sketcher.Constraint("Vertical", 5))
sketch8.addConstraint(Sketcher.Constraint("Equal", 0, 6))
sketch8.addConstraint(Sketcher.Constraint("Symmetric", 1, 2, 4, 2, -2))
sketch8.addConstraint(Sketcher.Constraint("PointOnObject", 0, 3, -2))
sketch8.addConstraint(Sketcher.Constraint("Horizontal", 6, 3, 2, 2))
sketch8.addConstraint(Sketcher.Constraint("Horizontal", 3, 2, 6, 2))
sketch8.addConstraint(Sketcher.Constraint("Equal", 2, 4))
sketch8.addConstraint(Sketcher.Constraint("Radius", 0, 34.542763))
sketch8.addConstraint(Sketcher.Constraint("DistanceX", 3, 2, 3, 1, 38.385096))
sketch8.addConstraint(Sketcher.Constraint("DistanceY", 1, 2, 1, 1, 19.900774))
sketch8.addConstraint(Sketcher.Constraint("DistanceY", 1, 2, -1, 1, 112.081768))
sketch8.addConstraint(Sketcher.Constraint("DistanceY", 0, 3, 0, 2, 27.246759))
pad8 = body8.newObject("PartDesign::Pad", "Pad007")
pad8.Profile = sketch8
pad8.Length = Q("0.75 in")
pad8.Reversed = True
body9 = doc.addObject("PartDesign::Body", "Body008")

# Sketch on XZ plane
sketch9 = body9.newObject("Sketcher::SketchObject", "Sketch008")
sketch9.AttachmentSupport = (doc.getObject("XZ_Plane008"), [""])
sketch9.MapMode = "FlatFace"
sketch9.addGeometry(Part.LineSegment(App.Vector(-103.74027, 10.066374, 0), App.Vector(-81.551664, 10.066374, 0)), False)
sketch9.addGeometry(Part.ArcOfCircle(Part.Circle(App.Vector(-103.74027, 0, 0), App.Vector(0, 0, 1), 24.365265), math.radians(24.402517), math.radians(335.597483)), False)
sketch9.addGeometry(Part.LineSegment(App.Vector(-81.551664, -10.066374, 0), App.Vector(-103.74027, -10.066374, 0)), False)
sketch9.addGeometry(Part.LineSegment(App.Vector(-103.74027, -10.066374, 0), App.Vector(-115.324122, -5.052287, 0)), False)
sketch9.addGeometry(Part.LineSegment(App.Vector(-115.324122, -5.052287, 0), App.Vector(-115.324122, 5.052287, 0)), False)
sketch9.addGeometry(Part.LineSegment(App.Vector(-115.324122, 5.052287, 0), App.Vector(-103.74027, 10.066374, 0)), False)
sketch9.addConstraint(Sketcher.Constraint("Coincident", 0, 2, 1, 1))
sketch9.addConstraint(Sketcher.Constraint("Coincident", 1, 2, 2, 1))
sketch9.addConstraint(Sketcher.Constraint("Coincident", 2, 2, 3, 1))
sketch9.addConstraint(Sketcher.Constraint("Coincident", 3, 2, 4, 1))
sketch9.addConstraint(Sketcher.Constraint("Coincident", 4, 2, 5, 1))
sketch9.addConstraint(Sketcher.Constraint("Coincident", 5, 2, 0, 1))
sketch9.addConstraint(Sketcher.Constraint("Horizontal", 0))
sketch9.addConstraint(Sketcher.Constraint("Horizontal", 2))
sketch9.addConstraint(Sketcher.Constraint("Vertical", 4))
sketch9.addConstraint(Sketcher.Constraint("Symmetric", 0, 2, 1, 2, -1))
sketch9.addConstraint(Sketcher.Constraint("Vertical", 1, 3, 2, 2))
sketch9.addConstraint(Sketcher.Constraint("Vertical", 2, 2, 5, 2))
sketch9.addConstraint(Sketcher.Constraint("Equal", 3, 5))
sketch9.addConstraint(Sketcher.Constraint("Radius", 1, 24.365265))
sketch9.addConstraint(Sketcher.Constraint("DistanceX", 0, 1, 0, 2, 22.188606))
sketch9.addConstraint(Sketcher.Constraint("DistanceY", 4, 1, 4, 2, 10.104573))
sketch9.addConstraint(Sketcher.Constraint("DistanceX", 1, 3, -1, 1, 103.74027))
sketch9.addConstraint(Sketcher.Constraint("DistanceX", 3, 2, 2, 2, 11.583852))
pad9 = body9.newObject("PartDesign::Pad", "Pad008")
pad9.Profile = sketch9
pad9.Length = Q("0.75 in")
pad9.Reversed = True
body10 = doc.addObject("PartDesign::Body", "Body009")

# Sketch on XZ plane
sketch10 = body10.newObject("Sketcher::SketchObject", "Sketch009")
sketch10.AttachmentSupport = (doc.getObject("XZ_Plane009"), [""])
sketch10.MapMode = "FlatFace"
sketch10.addGeometry(Part.ArcOfCircle(Part.Circle(App.Vector(103.74027, 0, 0), App.Vector(0, 0, 1), 24.365265), math.radians(0), math.radians(155.597483)), False)
sketch10.addGeometry(Part.LineSegment(App.Vector(81.551664, 10.066374, 0), App.Vector(103.74027, 10.066374, 0)), False)
sketch10.addGeometry(Part.LineSegment(App.Vector(103.74027, 10.066374, 0), App.Vector(115.324122, 5.052287, 0)), False)
sketch10.addGeometry(Part.LineSegment(App.Vector(115.324122, 5.052287, 0), App.Vector(115.324122, -5.052287, 0)), False)
sketch10.addGeometry(Part.LineSegment(App.Vector(115.324122, -5.052287, 0), App.Vector(103.74027, -10.066374, 0)), False)
sketch10.addGeometry(Part.LineSegment(App.Vector(103.74027, -10.066374, 0), App.Vector(81.551664, -10.066374, 0)), False)
sketch10.addGeometry(Part.ArcOfCircle(Part.Circle(App.Vector(103.74027, 0, 0), App.Vector(0, 0, 1), 24.365265), math.radians(-155.597483), math.radians(0)), False)
sketch10.addConstraint(Sketcher.Constraint("Coincident", 0, 2, 1, 1))
sketch10.addConstraint(Sketcher.Constraint("Coincident", 1, 2, 2, 1))
sketch10.addConstraint(Sketcher.Constraint("Coincident", 2, 2, 3, 1))
sketch10.addConstraint(Sketcher.Constraint("Coincident", 3, 2, 4, 1))
sketch10.addConstraint(Sketcher.Constraint("Coincident", 4, 2, 5, 1))
sketch10.addConstraint(Sketcher.Constraint("Coincident", 5, 2, 6, 1))
sketch10.addConstraint(Sketcher.Constraint("Tangent", 6, 2, 0, 1))
sketch10.addConstraint(Sketcher.Constraint("Horizontal", 1))
sketch10.addConstraint(Sketcher.Constraint("Vertical", 3))
sketch10.addConstraint(Sketcher.Constraint("Horizontal", 5))
sketch10.addConstraint(Sketcher.Constraint("Equal", 0, 6))
sketch10.addConstraint(Sketcher.Constraint("Symmetric", 1, 2, 4, 2, -1))
sketch10.addConstraint(Sketcher.Constraint("PointOnObject", 0, 3, -1))
sketch10.addConstraint(Sketcher.Constraint("PointOnObject", 6, 2, -1))
sketch10.addConstraint(Sketcher.Constraint("Vertical", 6, 3, 1, 2))
sketch10.addConstraint(Sketcher.Constraint("Equal", 2, 4))
sketch10.addConstraint(Sketcher.Constraint("Radius", 0, 24.365265))
sketch10.addConstraint(Sketcher.Constraint("DistanceX", 1, 1, 1, 2, 22.188606))
sketch10.addConstraint(Sketcher.Constraint("DistanceY", 3, 2, 3, 1, 10.104573))
sketch10.addConstraint(Sketcher.Constraint("DistanceX", -1, 1, 0, 3, 103.74027))
sketch10.addConstraint(Sketcher.Constraint("DistanceX", 1, 2, 2, 2, 11.583852))
pad10 = body10.newObject("PartDesign::Pad", "Pad009")
pad10.Profile = sketch10
pad10.Length = Q("0.75 in")
pad10.Reversed = True

doc.recompute()
